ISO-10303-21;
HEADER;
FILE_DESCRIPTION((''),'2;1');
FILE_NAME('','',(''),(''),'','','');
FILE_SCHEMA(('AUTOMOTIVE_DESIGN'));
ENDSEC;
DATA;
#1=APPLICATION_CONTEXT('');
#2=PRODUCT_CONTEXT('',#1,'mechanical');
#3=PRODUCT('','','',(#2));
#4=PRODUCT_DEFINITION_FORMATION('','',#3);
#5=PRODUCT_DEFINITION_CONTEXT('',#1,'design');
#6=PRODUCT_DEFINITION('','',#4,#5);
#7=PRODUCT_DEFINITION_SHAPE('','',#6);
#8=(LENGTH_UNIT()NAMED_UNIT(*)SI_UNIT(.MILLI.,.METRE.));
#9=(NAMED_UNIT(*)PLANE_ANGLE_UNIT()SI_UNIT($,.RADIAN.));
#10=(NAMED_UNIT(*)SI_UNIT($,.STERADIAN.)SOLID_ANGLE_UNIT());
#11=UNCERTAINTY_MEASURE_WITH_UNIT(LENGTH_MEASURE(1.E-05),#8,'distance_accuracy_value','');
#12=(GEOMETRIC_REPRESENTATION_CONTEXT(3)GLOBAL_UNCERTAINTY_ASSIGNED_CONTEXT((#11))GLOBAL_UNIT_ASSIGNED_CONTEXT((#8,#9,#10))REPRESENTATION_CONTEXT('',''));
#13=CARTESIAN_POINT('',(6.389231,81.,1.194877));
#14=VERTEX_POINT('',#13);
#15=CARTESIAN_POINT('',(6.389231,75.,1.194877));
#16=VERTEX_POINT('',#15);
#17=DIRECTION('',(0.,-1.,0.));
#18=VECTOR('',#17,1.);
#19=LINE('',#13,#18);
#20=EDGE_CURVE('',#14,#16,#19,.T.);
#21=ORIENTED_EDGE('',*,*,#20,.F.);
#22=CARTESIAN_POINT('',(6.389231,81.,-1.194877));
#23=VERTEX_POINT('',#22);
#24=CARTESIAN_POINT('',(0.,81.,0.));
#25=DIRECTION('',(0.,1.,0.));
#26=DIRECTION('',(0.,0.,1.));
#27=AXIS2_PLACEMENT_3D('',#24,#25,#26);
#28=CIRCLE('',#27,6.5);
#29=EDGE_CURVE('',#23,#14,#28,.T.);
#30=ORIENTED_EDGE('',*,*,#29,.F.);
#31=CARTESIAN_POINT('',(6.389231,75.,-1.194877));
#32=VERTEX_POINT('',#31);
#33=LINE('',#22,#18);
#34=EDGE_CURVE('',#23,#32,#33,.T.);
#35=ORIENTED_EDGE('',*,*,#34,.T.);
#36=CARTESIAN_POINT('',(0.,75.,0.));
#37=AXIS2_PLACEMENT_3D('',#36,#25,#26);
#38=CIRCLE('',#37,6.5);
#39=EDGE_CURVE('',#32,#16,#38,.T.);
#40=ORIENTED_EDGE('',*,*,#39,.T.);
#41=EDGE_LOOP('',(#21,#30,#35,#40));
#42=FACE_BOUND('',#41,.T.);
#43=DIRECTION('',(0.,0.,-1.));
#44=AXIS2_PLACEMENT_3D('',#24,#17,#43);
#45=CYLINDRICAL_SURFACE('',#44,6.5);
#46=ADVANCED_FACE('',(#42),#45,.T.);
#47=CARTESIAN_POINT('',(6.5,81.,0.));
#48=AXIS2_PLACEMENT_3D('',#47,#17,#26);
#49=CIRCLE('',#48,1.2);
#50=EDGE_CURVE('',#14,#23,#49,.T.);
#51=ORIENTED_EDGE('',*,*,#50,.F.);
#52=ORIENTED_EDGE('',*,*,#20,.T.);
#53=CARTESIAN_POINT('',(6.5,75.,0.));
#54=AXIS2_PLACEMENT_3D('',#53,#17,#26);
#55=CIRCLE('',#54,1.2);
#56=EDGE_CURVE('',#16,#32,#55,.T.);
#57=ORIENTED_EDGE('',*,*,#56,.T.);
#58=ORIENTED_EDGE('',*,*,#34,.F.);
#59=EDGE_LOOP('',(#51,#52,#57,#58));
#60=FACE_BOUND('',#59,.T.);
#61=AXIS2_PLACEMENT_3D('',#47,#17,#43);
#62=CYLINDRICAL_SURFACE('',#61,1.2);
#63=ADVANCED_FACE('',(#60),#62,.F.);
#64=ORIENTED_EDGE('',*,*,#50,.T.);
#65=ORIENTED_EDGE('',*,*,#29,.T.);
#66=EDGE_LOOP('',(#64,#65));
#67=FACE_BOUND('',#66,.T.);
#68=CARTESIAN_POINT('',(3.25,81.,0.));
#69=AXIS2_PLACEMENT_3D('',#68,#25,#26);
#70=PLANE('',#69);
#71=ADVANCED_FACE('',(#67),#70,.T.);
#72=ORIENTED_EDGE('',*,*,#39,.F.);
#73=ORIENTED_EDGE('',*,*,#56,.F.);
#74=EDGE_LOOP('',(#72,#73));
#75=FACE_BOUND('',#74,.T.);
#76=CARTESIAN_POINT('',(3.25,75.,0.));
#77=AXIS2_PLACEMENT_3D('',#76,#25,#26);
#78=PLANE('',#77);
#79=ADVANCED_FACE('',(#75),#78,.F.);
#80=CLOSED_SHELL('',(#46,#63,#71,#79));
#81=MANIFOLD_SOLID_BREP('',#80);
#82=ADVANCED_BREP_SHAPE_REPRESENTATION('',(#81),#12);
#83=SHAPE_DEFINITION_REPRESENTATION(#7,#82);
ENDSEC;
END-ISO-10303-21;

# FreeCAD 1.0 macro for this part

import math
import FreeCAD as App
import Part
import Sketcher
Q = App.Units.Quantity

doc = App.newDocument("Part")
params = doc.addObject("Spreadsheet::Sheet", "Params")
for row, (alias, value) in enumerate([
    ("sketch1_radius", "1.2 mm"),
    ("sketch1_radius2", "6.5 mm"),
    ("pad1_length", "6 mm"),
], start=1):
    params.set(f"A{row}", alias)
    params.set(f"B{row}", "=" + value)
    params.setAlias(f"B{row}", alias)

body = doc.addObject("PartDesign::Body", "Body")

# Sketch on XZ plane
sketch1 = body.newObject("Sketcher::SketchObject", "Sketch")
sketch1.AttachmentSupport = (doc.getObject("XZ_Plane"), [""])
sketch1.MapMode = "FlatFace"
sketch1.AttachmentOffset = App.Placement(App.Vector(0, 0, -75), App.Rotation())
sketch1.addGeometry(Part.ArcOfCircle(Part.Circle(App.Vector(6.5, 0, 0), App.Vector(0, 0, 1), 1.2), math.radians(95), math.radians(265)), False)
sketch1.addGeometry(Part.ArcOfCircle(Part.Circle(App.Vector(0, 0, 0), App.Vector(0, 0, 1), 6.5), math.radians(11), math.radians(349)), False)
sketch1.addConstraint(Sketcher.Constraint("Coincident", 0, 1, 1, 1))
sketch1.addConstraint(Sketcher.Constraint("Coincident", 1, 2, 0, 2))
sketch1.addConstraint(Sketcher.Constraint("Coincident", 1, 3, -1, 1))
sketch1.addConstraint(Sketcher.Constraint("PointOnObject", 0, 3, -1))
sketch1.addConstraint(Sketcher.Constraint("Radius", 0, Q("1.2 mm")))
sketch1.addConstraint(Sketcher.Constraint("Radius", 1, Q("6.5 mm")))
sketch1.addConstraint(Sketcher.Constraint("DistanceX", -1, 1, 0, 3, Q("6.5 mm")))
sketch1.setExpression("Constraints[4]", "Params.sketch1_radius")
sketch1.setExpression("Constraints[5]", "Params.sketch1_radius2")
pad1 = body.newObject("PartDesign::Pad", "Pad")
pad1.Profile = sketch1
pad1.setExpression("Length", "Params.pad1_length")
pad1.Reversed = True

doc.recompute()
